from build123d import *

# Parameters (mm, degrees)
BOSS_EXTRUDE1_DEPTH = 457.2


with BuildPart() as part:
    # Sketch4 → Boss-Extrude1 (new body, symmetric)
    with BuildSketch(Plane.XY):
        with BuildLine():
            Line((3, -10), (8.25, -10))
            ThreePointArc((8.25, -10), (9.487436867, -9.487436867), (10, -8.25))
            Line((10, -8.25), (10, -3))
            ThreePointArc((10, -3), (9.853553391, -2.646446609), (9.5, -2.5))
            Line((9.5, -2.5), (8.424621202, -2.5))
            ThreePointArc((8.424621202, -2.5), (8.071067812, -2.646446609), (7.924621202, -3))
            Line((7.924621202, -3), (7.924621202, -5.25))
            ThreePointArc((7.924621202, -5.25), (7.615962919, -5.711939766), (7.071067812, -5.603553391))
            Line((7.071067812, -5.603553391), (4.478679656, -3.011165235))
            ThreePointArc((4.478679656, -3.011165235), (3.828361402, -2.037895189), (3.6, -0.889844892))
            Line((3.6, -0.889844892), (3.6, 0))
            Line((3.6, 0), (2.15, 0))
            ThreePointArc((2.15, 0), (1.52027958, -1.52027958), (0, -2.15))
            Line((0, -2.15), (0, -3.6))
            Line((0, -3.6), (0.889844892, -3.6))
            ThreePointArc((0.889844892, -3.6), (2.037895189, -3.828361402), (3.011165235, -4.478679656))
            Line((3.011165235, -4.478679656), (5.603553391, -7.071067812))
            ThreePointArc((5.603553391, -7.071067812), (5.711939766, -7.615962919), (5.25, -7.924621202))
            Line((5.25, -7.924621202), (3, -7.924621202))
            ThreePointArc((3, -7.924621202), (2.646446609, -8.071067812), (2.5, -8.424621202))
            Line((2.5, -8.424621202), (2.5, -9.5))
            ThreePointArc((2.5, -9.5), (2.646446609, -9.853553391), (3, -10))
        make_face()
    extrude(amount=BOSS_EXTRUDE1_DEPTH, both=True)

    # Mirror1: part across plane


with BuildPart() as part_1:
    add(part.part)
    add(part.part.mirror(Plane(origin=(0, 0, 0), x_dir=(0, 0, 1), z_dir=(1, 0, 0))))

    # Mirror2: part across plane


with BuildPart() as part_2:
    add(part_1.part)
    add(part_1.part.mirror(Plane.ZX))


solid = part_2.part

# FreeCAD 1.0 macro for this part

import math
import FreeCAD as App
import Part
import Sketcher
from FreeCAD import Vector
Q = App.Units.Quantity

doc = App.newDocument("Part")
body = doc.addObject("PartDesign::Body", "Body")

# Sketch on XY plane
sketch1 = body.newObject("Sketcher::SketchObject", "Sketch")
sketch1.AttachmentSupport = (doc.getObject("XY_Plane"), [""])
sketch1.MapMode = "FlatFace"
sketch1.addGeometry([
    Part.LineSegment(Vector(3, -10, 0), Vector(8.25, -10, 0)),  # 0
    Part.ArcOfCircle(Part.Circle(Vector(8.25, -8.25, 0), Vector(0, 0, 1), 1.75), math.radians(-90), math.radians(0)),  # 1
    Part.LineSegment(Vector(10, -8.25, 0), Vector(10, -3, 0)),  # 2
    Part.ArcOfCircle(Part.Circle(Vector(9.5, -3, 0), Vector(0, 0, 1), 0.5), math.radians(0), math.radians(90)),  # 3
    Part.LineSegment(Vector(9.5, -2.5, 0), Vector(8.42, -2.5, 0)),  # 4
    Part.ArcOfCircle(Part.Circle(Vector(8.42, -3, 0), Vector(0, 0, 1), 0.5), math.radians(90), math.radians(180)),  # 5
    Part.LineSegment(Vector(7.92, -3, 0), Vector(7.92, -5.25, 0)),  # 6
    Part.ArcOfCircle(Part.Circle(Vector(7.42, -5.25, 0), Vector(0, 0, 1), 0.5), math.radians(-135), math.radians(0)),  # 7
    Part.LineSegment(Vector(7.07, -5.6, 0), Vector(4.48, -3.01, 0)),  # 8
    Part.ArcOfCircle(Part.Circle(Vector(6.6, -0.89, 0), Vector(0, 0, 1), 3), math.radians(180), math.radians(225)),  # 9
    Part.LineSegment(Vector(3.6, -0.89, 0), Vector(3.6, 0, 0)),  # 10
    Part.LineSegment(Vector(3.6, 0, 0), Vector(2.15, 0, 0)),  # 11
    Part.ArcOfCircle(Part.Circle(Vector(0, 0, 0), Vector(0, 0, 1), 2.15), math.radians(-90), math.radians(0)),  # 12
    Part.LineSegment(Vector(0, -2.15, 0), Vector(0, -3.6, 0)),  # 13
    Part.LineSegment(Vector(0, -3.6, 0), Vector(0.89, -3.6, 0)),  # 14
    Part.ArcOfCircle(Part.Circle(Vector(0.89, -6.6, 0), Vector(0, 0, 1), 3), math.radians(45), math.radians(90)),  # 15
    Part.LineSegment(Vector(3.01, -4.48, 0), Vector(5.6, -7.07, 0)),  # 16
    Part.ArcOfCircle(Part.Circle(Vector(5.25, -7.42, 0), Vector(0, 0, 1), 0.5), math.radians(-90), math.radians(45)),  # 17
    Part.LineSegment(Vector(5.25, -7.92, 0), Vector(3, -7.92, 0)),  # 18
    Part.ArcOfCircle(Part.Circle(Vector(3, -8.42, 0), Vector(0, 0, 1), 0.5), math.radians(90), math.radians(180)),  # 19
    Part.LineSegment(Vector(2.5, -8.42, 0), Vector(2.5, -9.5, 0)),  # 20
    Part.ArcOfCircle(Part.Circle(Vector(3, -9.5, 0), Vector(0, 0, 1), 0.5), math.radians(180), math.radians(270)),  # 21
], False)
sketch1.addConstraint([
    Sketcher.Constraint("Tangent", 0, 2, 1, 1),
    Sketcher.Constraint("Tangent", 1, 2, 2, 1),
    Sketcher.Constraint("Tangent", 2, 2, 3, 1),
    Sketcher.Constraint("Tangent", 3, 2, 4, 1),
    Sketcher.Constraint("Tangent", 4, 2, 5, 1),
    Sketcher.Constraint("Tangent", 5, 2, 6, 1),
    Sketcher.Constraint("Tangent", 6, 2, 7, 2),
    Sketcher.Constraint("Tangent", 7, 1, 8, 1),
    Sketcher.Constraint("Tangent", 8, 2, 9, 2),
    Sketcher.Constraint("Tangent", 9, 1, 10, 1),
    Sketcher.Constraint("Coincident", 10, 2, 11, 1),
    Sketcher.Constraint("Coincident", 11, 2, 12, 2),
    Sketcher.Constraint("Coincident", 12, 1, 13, 1),
    Sketcher.Constraint("Coincident", 13, 2, 14, 1),
    Sketcher.Constraint("Tangent", 14, 2, 15, 2),
    Sketcher.Constraint("Tangent", 15, 1, 16, 1),
    Sketcher.Constraint("Tangent", 16, 2, 17, 2),
    Sketcher.Constraint("Tangent", 17, 1, 18, 1),
    Sketcher.Constraint("Tangent", 18, 2, 19, 1),
    Sketcher.Constraint("Tangent", 19, 2, 20, 1),
    Sketcher.Constraint("Tangent", 20, 2, 21, 1),
    Sketcher.Constraint("Tangent", 21, 2, 0, 1),
    Sketcher.Constraint("Horizontal", 0),
    Sketcher.Constraint("Vertical", 2),
    Sketcher.Constraint("Horizontal", 4),
    Sketcher.Constraint("Vertical", 6),
    Sketcher.Constraint("Vertical", 10),
    Sketcher.Constraint("Horizontal", 11),
    Sketcher.Constraint("Vertical", 13),
    Sketcher.Constraint("Horizontal", 14),
    Sketcher.Constraint("Horizontal", 18),
    Sketcher.Constraint("Vertical", 20),
    Sketcher.Constraint("Coincident", 12, 3, -1, 1),
    Sketcher.Constraint("Equal", 3, 5),
    Sketcher.Constraint("Equal", 5, 7),
    Sketcher.Constraint("Equal", 9, 15),
    Sketcher.Constraint("Equal", 7, 17),
    Sketcher.Constraint("Equal", 17, 19),
    Sketcher.Constraint("Equal", 19, 21),
    Sketcher.Constraint("PointOnObject", 10, 2, -1),
    Sketcher.Constraint("PointOnObject", 12, 1, -2),
    Sketcher.Constraint("Parallel", 8, 16),
    Sketcher.Constraint("Equal", 0, 2),
    Sketcher.Constraint("Equal", 18, 6),
    Sketcher.Constraint("Equal", 14, 10),
    Sketcher.Constraint("Equal", 11, 13),
    Sketcher.Constraint("Equal", 4, 20),
    Sketcher.Constraint("Equal", 8, 16),
    Sketcher.Constraint("Radius", 9, Q("3 mm")),
    Sketcher.Constraint("Radius", 3, Q("0.5 mm")),
    Sketcher.Constraint("Radius", 1, Q("1.75 mm")),
    Sketcher.Constraint("Radius", 12, Q("2.15 mm")),
    Sketcher.Constraint("DistanceY", 3, 3, -1, 1, Q("3 mm")),
    Sketcher.Constraint("DistanceY", 0, 2, -1, 1, Q("10 mm")),
    Sketcher.Constraint("DistanceY", 1, 3, 7, 3, Q("3 mm")),
    Sketcher.Constraint("DistanceX", 11, 2, 11, 1, Q("1.45 mm")),
    Sketcher.Constraint("DistanceX", 4, 2, 4, 1, Q("1.075379 mm")),
])
pad1 = body.newObject("PartDesign::Pad", "Pad")
pad1.Profile = sketch1
pad1.Length = 914.4
pad1.Midplane = True
body2 = doc.addObject("PartDesign::Body", "Body001")
doc.recompute()

body2.BaseFeature = body
doc.recompute()

mirroring = doc.addObject("Part::Mirroring", "Mirroring")
mirroring.Source = body
mirroring.Base = Vector(0, 0, 0)
mirroring.Normal = Vector(1, 0, 0)
body3 = doc.addObject("PartDesign::Body", "Body002")
body3.BaseFeature = mirroring
boolean = body2.newObject("PartDesign::Boolean", "Boolean")
boolean.Type = "Fuse"
boolean.addObjects([body3])
doc.recompute()
body4 = doc.addObject("PartDesign::Body", "Body003")
doc.recompute()

body4.BaseFeature = body2
doc.recompute()

mirroring2 = doc.addObject("Part::Mirroring", "Mirroring001")
mirroring2.Source = body2
mirroring2.Base = Vector(0, 0, 0)
mirroring2.Normal = Vector(0, 1, 0)
body5 = doc.addObject("PartDesign::Body", "Body004")
body5.BaseFeature = mirroring2
boolean2 = body4.newObject("PartDesign::Boolean", "Boolean001")
boolean2.Type = "Fuse"
boolean2.addObjects([body5])
doc.recompute()
mirroring.Visibility = False
mirroring2.Visibility = False

doc.recompute()
